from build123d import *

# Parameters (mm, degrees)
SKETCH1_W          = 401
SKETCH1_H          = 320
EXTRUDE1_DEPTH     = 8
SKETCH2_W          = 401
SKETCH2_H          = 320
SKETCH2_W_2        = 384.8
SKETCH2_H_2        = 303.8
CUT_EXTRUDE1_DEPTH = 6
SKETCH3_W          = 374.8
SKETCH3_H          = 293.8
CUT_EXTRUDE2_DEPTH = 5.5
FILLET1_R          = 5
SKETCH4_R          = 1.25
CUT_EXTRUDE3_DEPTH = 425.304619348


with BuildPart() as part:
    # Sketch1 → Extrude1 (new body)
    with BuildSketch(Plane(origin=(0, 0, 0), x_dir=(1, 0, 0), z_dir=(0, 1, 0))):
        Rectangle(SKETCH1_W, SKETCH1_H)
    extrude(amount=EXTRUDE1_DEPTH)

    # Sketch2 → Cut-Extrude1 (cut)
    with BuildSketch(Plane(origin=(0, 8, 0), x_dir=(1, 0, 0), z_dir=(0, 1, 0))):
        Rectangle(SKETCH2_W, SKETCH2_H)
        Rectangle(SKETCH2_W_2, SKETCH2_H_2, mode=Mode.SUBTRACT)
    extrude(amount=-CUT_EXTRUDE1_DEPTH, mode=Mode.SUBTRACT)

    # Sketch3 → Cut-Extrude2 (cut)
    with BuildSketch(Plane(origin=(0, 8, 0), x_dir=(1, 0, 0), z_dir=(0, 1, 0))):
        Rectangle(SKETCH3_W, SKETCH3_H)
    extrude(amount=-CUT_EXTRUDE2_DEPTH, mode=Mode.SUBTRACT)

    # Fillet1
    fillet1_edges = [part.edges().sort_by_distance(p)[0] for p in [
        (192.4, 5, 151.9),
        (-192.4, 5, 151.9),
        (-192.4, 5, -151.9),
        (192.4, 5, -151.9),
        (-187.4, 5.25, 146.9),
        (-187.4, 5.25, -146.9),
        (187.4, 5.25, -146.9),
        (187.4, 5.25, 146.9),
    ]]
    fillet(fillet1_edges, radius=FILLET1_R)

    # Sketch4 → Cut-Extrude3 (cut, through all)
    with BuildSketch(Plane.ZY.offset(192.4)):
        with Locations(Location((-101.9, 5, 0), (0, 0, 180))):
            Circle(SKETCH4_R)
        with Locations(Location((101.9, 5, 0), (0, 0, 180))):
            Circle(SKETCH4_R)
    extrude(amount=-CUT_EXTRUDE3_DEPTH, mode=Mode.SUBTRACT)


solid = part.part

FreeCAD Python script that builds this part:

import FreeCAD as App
import Part
import Sketcher

V = App.Vector
Q = App.Units.Quantity


def edges_at(feature, points):
    """Names of the edges that pass closest to the given points."""
    edges = feature.Shape.Edges
    near = lambda p: min(range(len(edges)), key=lambda i: edges[i].distToShape(Part.Vertex(*p))[0])
    return sorted({f"Edge{near(p) + 1}" for p in points})


def add_polygon(sketch, points):
    """Adds a closed chain of lines whose ends are joined by coincident constraints."""
    first, n = sketch.GeometryCount, len(points)
    for a, b in zip(points, points[1:] + points[:1]):
        sketch.addGeometry(Part.LineSegment(App.Vector(*a, 0), App.Vector(*b, 0)), False)
    for i in range(n):
        sketch.addConstraint(Sketcher.Constraint("Coincident", first + i, 2, first + (i + 1) % n, 1))

doc = App.newDocument("Part")
body = doc.addObject("PartDesign::Body", "Body")

sketch1 = body.newObject("Sketcher::SketchObject", "Sketch")
sketch1.AttachmentSupport = (doc.getObject("XZ_Plane"), [""])
sketch1.MapMode = "FlatFace"
add_polygon(sketch1, [(-200, -160), (-200, 160), (200, 160), (200, -160)])
sketch1.addConstraint(Sketcher.Constraint("Vertical", 0))
sketch1.addConstraint(Sketcher.Constraint("Horizontal", 1))
sketch1.addConstraint(Sketcher.Constraint("Vertical", 2))
sketch1.addConstraint(Sketcher.Constraint("Horizontal", 3))
sketch1.addConstraint(Sketcher.Constraint("Symmetric", 0, 2, 2, 2, -1, 1))
sketch1.addConstraint(Sketcher.Constraint("DistanceX", 1, 1, 1, 2, Q("401 mm")))
sketch1.addConstraint(Sketcher.Constraint("DistanceY", 0, 1, 0, 2, Q("320 mm")))
pad1 = body.newObject("PartDesign::Pad", "Pad")
pad1.Profile = sketch1
pad1.Length = 8
pad1.Reversed = True

sketch2 = body.newObject("Sketcher::SketchObject", "Sketch001")
sketch2.AttachmentSupport = (doc.getObject("XZ_Plane"), [""])
sketch2.MapMode = "FlatFace"
sketch2.AttachmentOffset = App.Placement(V(0, 0, -8), App.Rotation())
add_polygon(sketch2, [(-200, -160), (-200, 160), (200, 160), (200, -160)])
add_polygon(sketch2, [(192, 152), (-192, 152), (-192, -152), (192, -152)])
sketch2.addConstraint(Sketcher.Constraint("Vertical", 0))
sketch2.addConstraint(Sketcher.Constraint("Horizontal", 1))
sketch2.addConstraint(Sketcher.Constraint("Vertical", 2))
sketch2.addConstraint(Sketcher.Constraint("Horizontal", 3))
sketch2.addConstraint(Sketcher.Constraint("Horizontal", 4))
sketch2.addConstraint(Sketcher.Constraint("Vertical", 5))
sketch2.addConstraint(Sketcher.Constraint("Horizontal", 6))
sketch2.addConstraint(Sketcher.Constraint("Vertical", 7))
sketch2.addConstraint(Sketcher.Constraint("Symmetric", 0, 2, 2, 2, -1, 1))
sketch2.addConstraint(Sketcher.Constraint("Symmetric", 4, 2, 6, 2, -1, 1))
sketch2.addConstraint(Sketcher.Constraint("DistanceX", 1, 1, 1, 2, Q("401 mm")))
sketch2.addConstraint(Sketcher.Constraint("DistanceY", 0, 1, 0, 2, Q("320 mm")))
sketch2.addConstraint(Sketcher.Constraint("DistanceX", 4, 2, 4, 1, Q("384.8 mm")))
sketch2.addConstraint(Sketcher.Constraint("DistanceY", 5, 2, 5, 1, Q("303.8 mm")))
pocket1 = body.newObject("PartDesign::Pocket", "Pocket")
pocket1.Profile = sketch2
pocket1.Length = 6
pocket1.Reversed = True

sketch3 = body.newObject("Sketcher::SketchObject", "Sketch002")
sketch3.AttachmentSupport = (doc.getObject("XZ_Plane"), [""])
sketch3.MapMode = "FlatFace"
sketch3.AttachmentOffset = App.Placement(V(0, 0, -8), App.Rotation())
add_polygon(sketch3, [(-187, -147), (-187, 147), (187, 147), (187, -147)])
sketch3.addConstraint(Sketcher.Constraint("Vertical", 0))
sketch3.addConstraint(Sketcher.Constraint("Horizontal", 1))
sketch3.addConstraint(Sketcher.Constraint("Vertical", 2))
sketch3.addConstraint(Sketcher.Constraint("Horizontal", 3))
sketch3.addConstraint(Sketcher.Constraint("Symmetric", 0, 2, 2, 2, -1, 1))
sketch3.addConstraint(Sketcher.Constraint("DistanceX", 1, 1, 1, 2, Q("374.8 mm")))
sketch3.addConstraint(Sketcher.Constraint("DistanceY", 0, 1, 0, 2, Q("293.8 mm")))
pocket2 = body.newObject("PartDesign::Pocket", "Pocket001")
pocket2.Profile = sketch3
pocket2.Length = 5.5
pocket2.Reversed = True
doc.recompute()

fillet = body.newObject("PartDesign::Fillet", "Fillet")
fillet.Base = (pocket2, edges_at(pocket2, [
    (192.4, 5, 151.9),
    (-192.4, 5, 151.9),
    (-192.4, 5, -151.9),
    (192.4, 5, -151.9),
    (-187.4, 5.25, 146.9),
    (-187.4, 5.25, -146.9),
    (187.4, 5.25, -146.9),
    (187.4, 5.25, 146.9),
]))
fillet.Radius = 5

sketch4 = body.newObject("Sketcher::SketchObject", "Sketch003")
sketch4.AttachmentSupport = (doc.getObject("YZ_Plane"), [""])
sketch4.MapMode = "FlatFace"
sketch4.AttachmentOffset = App.Placement(V(0, 0, -192.4), App.Rotation())
sketch4.addGeometry(Part.Circle(V(5, -101.9, 0), V(0, 0, 1), 1.2), False)
sketch4.addGeometry(Part.Circle(V(5, 101.9, 0), V(0, 0, 1), 1.2), False)
sketch4.addConstraint(Sketcher.Constraint("Equal", 0, 1))
sketch4.addConstraint(Sketcher.Constraint("Symmetric", 0, 3, 1, 3, -1))
sketch4.addConstraint(Sketcher.Constraint("Diameter", 0, Q("2.5 mm")))
sketch4.addConstraint(Sketcher.Constraint("DistanceX", -1, 1, 0, 3, Q("5 mm")))
sketch4.addConstraint(Sketcher.Constraint("DistanceY", 0, 3, -1, 1, Q("101.9 mm")))
pocket3 = body.newObject("PartDesign::Pocket", "Pocket002")
pocket3.Profile = sketch4
pocket3.Type = "ThroughAll"
pocket3.Reversed = True

doc.recompute()
